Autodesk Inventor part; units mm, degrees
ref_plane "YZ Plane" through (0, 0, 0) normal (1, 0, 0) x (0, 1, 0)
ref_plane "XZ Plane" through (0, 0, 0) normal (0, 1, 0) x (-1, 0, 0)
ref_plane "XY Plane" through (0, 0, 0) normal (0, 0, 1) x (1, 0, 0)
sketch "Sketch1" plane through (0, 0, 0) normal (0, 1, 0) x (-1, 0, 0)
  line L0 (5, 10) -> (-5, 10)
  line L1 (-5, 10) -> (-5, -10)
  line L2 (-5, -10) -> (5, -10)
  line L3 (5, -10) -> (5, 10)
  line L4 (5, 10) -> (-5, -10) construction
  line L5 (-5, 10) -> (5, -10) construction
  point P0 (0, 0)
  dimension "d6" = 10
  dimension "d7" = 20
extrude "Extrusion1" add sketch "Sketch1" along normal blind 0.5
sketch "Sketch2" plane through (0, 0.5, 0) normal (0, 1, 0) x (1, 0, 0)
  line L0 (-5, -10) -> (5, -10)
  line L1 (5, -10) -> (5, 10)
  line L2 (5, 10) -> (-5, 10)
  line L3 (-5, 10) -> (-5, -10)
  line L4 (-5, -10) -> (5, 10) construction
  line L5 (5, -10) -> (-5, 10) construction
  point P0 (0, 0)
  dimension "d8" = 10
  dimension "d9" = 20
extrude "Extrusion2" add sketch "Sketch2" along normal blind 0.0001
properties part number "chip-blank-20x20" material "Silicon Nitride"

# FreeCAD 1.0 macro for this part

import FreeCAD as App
import Part
import Sketcher

V = App.Vector


def add_polygon(sketch, points):
    """Adds a closed chain of lines whose ends are joined by coincident constraints."""
    first, n = sketch.GeometryCount, len(points)
    for a, b in zip(points, points[1:] + points[:1]):
        sketch.addGeometry(Part.LineSegment(App.Vector(*a, 0), App.Vector(*b, 0)), False)
    for i in range(n):
        sketch.addConstraint(Sketcher.Constraint("Coincident", first + i, 2, first + (i + 1) % n, 1))

doc = App.newDocument("Part")
body = doc.addObject("PartDesign::Body", "Body")

# Sketch on XZ plane
sketch1 = body.newObject("Sketcher::SketchObject", "Sketch")
sketch1.AttachmentSupport = (doc.getObject("XZ_Plane"), [""])
sketch1.MapMode = "FlatFace"
add_polygon(sketch1, [(-5, -10), (-5, 10), (5, 10), (5, -10)])  # lines 0-3
sketch1.addConstraint(Sketcher.Constraint("Vertical", 0))
sketch1.addConstraint(Sketcher.Constraint("Horizontal", 1))
sketch1.addConstraint(Sketcher.Constraint("Vertical", 2))
sketch1.addConstraint(Sketcher.Constraint("Horizontal", 3))
sketch1.addConstraint(Sketcher.Constraint("Symmetric", 0, 2, 2, 2, -1, 1))
sketch1.addConstraint(Sketcher.Constraint("DistanceX", 1, 1, 1, 2, 10.0))
sketch1.addConstraint(Sketcher.Constraint("DistanceY", 0, 1, 0, 2, 20.0))
pad1 = body.newObject("PartDesign::Pad", "Pad")
pad1.Profile = sketch1
pad1.Length = 0.5
pad1.Reversed = True

# Sketch on XZ plane
sketch2 = body.newObject("Sketcher::SketchObject", "Sketch001")
sketch2.AttachmentSupport = (doc.getObject("XZ_Plane"), [""])
sketch2.MapMode = "FlatFace"
sketch2.AttachmentOffset = App.Placement(V(0, 0, -0.5), App.Rotation())
add_polygon(sketch2, [(-5, -10), (-5, 10), (5, 10), (5, -10)])  # lines 0-3
sketch2.addConstraint(Sketcher.Constraint("Vertical", 0))
sketch2.addConstraint(Sketcher.Constraint("Horizontal", 1))
sketch2.addConstraint(Sketcher.Constraint("Vertical", 2))
sketch2.addConstraint(Sketcher.Constraint("Horizontal", 3))
sketch2.addConstraint(Sketcher.Constraint("Symmetric", 0, 2, 2, 2, -1, 1))
sketch2.addConstraint(Sketcher.Constraint("DistanceX", 1, 1, 1, 2, 10.0))
sketch2.addConstraint(Sketcher.Constraint("DistanceY", 0, 1, 0, 2, 20.0))
pad2 = body.newObject("PartDesign::Pad", "Pad001")
pad2.Profile = sketch2
pad2.Length = 0.0001
pad2.Reversed = True

doc.recompute()
